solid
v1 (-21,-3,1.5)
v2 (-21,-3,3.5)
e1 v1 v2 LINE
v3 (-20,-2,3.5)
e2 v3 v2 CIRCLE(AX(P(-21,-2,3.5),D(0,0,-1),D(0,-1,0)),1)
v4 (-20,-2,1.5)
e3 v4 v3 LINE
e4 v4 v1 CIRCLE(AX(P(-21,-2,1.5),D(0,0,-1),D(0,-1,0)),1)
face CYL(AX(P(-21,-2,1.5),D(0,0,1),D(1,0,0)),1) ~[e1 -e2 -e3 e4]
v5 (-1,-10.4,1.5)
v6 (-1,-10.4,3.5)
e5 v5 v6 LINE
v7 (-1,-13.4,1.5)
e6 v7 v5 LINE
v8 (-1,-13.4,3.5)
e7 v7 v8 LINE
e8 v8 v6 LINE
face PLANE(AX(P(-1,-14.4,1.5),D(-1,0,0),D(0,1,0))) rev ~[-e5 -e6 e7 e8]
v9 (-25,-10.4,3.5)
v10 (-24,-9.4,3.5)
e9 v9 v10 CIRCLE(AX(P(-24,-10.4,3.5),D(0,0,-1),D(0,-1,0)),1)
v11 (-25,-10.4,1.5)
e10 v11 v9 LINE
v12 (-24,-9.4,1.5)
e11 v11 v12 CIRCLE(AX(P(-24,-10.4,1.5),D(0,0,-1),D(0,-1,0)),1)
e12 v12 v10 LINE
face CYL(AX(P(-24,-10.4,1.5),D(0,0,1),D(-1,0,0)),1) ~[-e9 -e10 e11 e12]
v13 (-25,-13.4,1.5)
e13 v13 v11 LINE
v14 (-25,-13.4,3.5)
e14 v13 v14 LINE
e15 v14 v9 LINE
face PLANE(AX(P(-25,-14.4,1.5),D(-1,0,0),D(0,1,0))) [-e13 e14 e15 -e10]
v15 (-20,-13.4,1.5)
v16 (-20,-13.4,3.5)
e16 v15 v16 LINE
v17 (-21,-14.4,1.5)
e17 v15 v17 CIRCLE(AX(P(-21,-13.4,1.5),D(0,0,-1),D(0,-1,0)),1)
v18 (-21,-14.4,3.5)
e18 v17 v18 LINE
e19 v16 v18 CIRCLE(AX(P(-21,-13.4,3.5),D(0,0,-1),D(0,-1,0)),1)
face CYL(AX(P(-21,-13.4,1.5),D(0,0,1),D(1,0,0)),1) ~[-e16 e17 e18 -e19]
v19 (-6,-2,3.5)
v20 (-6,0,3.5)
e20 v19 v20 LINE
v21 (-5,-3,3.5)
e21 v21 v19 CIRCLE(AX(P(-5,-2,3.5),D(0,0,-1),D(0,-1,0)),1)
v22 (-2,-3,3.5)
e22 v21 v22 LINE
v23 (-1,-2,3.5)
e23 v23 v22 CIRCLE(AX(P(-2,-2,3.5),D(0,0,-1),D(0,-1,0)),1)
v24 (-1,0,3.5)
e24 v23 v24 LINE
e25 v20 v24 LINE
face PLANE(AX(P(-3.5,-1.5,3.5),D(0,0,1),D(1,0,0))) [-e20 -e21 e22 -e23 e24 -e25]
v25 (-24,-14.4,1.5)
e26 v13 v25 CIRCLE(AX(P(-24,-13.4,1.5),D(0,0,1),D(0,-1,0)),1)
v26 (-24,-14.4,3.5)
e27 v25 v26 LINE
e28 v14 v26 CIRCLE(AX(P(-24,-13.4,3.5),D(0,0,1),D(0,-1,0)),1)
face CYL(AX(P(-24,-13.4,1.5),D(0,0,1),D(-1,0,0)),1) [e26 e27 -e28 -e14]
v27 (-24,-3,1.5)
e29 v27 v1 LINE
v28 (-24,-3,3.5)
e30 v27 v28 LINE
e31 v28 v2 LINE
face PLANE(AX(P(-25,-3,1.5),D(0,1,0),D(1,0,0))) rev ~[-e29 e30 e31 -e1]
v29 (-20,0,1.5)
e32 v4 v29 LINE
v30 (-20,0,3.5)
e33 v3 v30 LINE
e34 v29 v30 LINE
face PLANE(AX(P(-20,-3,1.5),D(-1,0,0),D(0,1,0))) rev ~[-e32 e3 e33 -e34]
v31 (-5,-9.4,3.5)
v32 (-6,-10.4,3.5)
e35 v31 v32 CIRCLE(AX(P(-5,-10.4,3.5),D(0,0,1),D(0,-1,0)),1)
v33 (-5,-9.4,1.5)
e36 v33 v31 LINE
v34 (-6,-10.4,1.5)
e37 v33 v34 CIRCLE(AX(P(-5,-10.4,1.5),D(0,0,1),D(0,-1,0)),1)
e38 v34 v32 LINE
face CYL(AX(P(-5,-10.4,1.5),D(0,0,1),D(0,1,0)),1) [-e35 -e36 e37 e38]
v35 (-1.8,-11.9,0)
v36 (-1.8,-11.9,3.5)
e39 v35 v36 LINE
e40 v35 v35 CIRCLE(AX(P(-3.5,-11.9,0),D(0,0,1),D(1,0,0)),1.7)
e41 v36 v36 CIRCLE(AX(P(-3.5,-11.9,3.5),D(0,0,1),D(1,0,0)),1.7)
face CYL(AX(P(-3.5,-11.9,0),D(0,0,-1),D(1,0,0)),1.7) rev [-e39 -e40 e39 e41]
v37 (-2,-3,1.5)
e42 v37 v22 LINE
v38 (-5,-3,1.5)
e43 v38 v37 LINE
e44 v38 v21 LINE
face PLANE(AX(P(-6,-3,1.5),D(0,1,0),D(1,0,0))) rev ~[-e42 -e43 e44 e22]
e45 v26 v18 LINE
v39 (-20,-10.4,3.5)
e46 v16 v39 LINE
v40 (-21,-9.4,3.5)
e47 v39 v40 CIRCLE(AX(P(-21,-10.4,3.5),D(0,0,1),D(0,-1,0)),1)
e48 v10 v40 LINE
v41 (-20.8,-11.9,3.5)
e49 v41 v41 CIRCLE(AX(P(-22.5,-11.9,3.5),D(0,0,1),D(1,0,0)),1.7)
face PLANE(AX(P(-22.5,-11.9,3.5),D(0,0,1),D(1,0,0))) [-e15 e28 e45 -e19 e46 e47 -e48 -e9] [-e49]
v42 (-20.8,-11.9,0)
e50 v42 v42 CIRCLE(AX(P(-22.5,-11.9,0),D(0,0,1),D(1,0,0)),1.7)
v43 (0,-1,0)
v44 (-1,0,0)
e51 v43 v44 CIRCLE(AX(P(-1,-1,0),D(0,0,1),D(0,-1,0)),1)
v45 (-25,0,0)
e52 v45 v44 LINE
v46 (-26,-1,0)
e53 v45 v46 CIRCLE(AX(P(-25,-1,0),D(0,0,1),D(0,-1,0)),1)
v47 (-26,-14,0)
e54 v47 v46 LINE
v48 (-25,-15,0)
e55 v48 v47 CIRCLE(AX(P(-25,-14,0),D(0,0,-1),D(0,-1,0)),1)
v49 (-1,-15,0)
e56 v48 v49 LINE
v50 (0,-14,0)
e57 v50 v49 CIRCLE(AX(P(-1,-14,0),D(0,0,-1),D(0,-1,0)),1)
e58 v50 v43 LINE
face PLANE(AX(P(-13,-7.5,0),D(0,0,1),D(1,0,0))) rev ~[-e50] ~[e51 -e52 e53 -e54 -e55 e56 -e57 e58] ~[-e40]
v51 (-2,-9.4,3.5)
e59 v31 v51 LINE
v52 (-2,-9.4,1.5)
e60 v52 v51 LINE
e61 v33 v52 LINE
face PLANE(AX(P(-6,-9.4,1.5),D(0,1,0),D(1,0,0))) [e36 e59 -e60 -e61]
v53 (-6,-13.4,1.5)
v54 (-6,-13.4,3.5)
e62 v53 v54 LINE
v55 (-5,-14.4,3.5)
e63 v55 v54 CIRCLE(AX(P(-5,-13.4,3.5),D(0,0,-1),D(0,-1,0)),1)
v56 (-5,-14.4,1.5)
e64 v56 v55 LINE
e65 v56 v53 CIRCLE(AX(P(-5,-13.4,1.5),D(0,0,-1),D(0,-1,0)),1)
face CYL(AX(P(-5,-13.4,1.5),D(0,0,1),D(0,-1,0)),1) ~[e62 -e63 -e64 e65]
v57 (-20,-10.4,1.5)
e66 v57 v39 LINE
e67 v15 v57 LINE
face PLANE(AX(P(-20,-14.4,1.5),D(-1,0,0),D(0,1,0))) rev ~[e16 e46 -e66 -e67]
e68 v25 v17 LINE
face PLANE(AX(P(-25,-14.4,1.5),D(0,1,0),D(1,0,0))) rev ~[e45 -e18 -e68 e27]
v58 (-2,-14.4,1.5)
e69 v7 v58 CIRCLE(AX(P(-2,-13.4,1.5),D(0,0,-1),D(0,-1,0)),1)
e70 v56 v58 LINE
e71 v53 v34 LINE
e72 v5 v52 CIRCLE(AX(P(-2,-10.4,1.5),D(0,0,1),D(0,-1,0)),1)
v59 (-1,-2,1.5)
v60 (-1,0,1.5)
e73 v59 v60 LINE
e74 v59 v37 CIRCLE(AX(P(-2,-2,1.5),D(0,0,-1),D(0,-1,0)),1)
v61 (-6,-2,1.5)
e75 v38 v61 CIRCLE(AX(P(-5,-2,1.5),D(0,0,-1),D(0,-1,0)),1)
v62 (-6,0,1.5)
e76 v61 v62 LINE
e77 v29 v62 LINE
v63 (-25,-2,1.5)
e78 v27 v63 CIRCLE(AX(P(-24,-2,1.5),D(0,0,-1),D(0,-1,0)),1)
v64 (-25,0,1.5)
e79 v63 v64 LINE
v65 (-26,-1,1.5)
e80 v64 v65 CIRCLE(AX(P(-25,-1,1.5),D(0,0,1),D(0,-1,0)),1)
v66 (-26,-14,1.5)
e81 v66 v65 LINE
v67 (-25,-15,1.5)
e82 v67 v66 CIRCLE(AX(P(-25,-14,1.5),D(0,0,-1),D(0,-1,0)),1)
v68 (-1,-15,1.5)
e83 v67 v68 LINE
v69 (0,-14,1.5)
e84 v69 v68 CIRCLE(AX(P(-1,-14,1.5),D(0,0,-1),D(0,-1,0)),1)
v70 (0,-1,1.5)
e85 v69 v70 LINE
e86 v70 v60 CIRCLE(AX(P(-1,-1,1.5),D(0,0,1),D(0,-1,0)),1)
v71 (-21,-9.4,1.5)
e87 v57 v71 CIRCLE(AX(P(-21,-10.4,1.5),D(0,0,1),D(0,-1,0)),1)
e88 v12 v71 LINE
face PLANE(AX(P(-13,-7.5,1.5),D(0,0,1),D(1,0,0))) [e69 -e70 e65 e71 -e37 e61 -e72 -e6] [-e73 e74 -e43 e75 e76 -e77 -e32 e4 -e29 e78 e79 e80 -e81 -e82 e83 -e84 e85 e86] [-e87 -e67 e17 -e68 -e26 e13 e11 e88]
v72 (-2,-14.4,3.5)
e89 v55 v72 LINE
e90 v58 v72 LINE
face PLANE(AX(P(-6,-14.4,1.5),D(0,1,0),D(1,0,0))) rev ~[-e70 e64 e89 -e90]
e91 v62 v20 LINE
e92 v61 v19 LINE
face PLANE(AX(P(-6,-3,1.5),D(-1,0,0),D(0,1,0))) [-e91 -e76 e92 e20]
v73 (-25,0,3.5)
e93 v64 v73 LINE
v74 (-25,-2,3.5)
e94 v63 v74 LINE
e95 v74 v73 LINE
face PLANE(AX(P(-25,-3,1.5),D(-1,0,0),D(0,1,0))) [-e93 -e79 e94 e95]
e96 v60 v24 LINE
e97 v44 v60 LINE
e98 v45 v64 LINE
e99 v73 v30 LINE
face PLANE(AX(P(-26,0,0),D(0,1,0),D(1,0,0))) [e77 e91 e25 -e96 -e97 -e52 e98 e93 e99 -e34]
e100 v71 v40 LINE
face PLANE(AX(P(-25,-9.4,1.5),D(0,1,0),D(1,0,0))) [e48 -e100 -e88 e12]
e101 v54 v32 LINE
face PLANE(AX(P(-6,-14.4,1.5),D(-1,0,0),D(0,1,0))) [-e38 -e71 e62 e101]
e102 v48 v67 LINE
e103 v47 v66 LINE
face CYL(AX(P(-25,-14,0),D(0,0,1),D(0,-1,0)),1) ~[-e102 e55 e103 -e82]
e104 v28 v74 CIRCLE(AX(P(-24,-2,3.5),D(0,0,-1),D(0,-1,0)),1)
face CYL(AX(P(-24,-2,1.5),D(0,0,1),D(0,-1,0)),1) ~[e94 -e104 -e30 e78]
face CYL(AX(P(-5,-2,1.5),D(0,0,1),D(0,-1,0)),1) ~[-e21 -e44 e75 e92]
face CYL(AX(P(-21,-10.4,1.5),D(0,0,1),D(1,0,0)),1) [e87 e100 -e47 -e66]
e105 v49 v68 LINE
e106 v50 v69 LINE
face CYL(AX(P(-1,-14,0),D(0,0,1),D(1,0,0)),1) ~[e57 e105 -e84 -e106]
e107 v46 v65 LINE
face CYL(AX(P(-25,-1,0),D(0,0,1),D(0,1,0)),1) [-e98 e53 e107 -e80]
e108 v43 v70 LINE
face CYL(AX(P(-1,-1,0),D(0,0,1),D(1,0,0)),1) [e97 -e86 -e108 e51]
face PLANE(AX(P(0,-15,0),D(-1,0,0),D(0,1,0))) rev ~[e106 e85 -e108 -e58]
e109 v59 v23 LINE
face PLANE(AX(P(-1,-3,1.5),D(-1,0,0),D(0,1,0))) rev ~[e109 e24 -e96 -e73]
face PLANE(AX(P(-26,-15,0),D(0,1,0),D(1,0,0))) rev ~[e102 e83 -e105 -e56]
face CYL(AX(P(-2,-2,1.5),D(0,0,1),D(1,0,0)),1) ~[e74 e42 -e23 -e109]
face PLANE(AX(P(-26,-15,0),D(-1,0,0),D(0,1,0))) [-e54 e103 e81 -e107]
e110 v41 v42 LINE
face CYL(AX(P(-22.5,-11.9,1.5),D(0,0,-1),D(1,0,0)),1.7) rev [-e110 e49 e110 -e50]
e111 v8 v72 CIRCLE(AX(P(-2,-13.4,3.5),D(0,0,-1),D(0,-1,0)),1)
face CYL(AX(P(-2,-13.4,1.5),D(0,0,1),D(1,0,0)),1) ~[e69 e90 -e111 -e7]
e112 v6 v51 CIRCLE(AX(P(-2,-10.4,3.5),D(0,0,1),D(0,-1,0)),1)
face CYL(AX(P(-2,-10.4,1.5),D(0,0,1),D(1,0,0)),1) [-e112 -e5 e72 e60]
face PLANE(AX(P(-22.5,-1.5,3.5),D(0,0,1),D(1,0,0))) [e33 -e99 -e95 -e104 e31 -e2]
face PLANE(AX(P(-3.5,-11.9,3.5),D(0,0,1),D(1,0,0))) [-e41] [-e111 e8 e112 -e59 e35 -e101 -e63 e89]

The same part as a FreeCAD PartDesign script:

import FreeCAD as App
import Part
import Sketcher

V = App.Vector
Q = App.Units.Quantity


def edges_at(feature, points):
    """Names of the edges that pass closest to the given points."""
    edges = feature.Shape.Edges
    near = lambda p: min(range(len(edges)), key=lambda i: edges[i].distToShape(Part.Vertex(*p))[0])
    return sorted({f"Edge{near(p) + 1}" for p in points})

doc = App.newDocument("Part")
body = doc.addObject("PartDesign::Body", "Body")

sketch1 = doc.addObject("Sketcher::SketchObject", "Sketch")
body.addObject(sketch1)
sketch1.AttachmentSupport = (doc.XY_Plane, [""])
sketch1.MapMode = "FlatFace"
sketch1.addGeometry(Part.LineSegment(V(-26, 0, 0), V(-26, -15, 0)), False)
sketch1.addGeometry(Part.LineSegment(V(-26, -15, 0), V(0, -15, 0)), False)
sketch1.addGeometry(Part.LineSegment(V(0, -15, 0), V(0, 0, 0)), False)
sketch1.addGeometry(Part.LineSegment(V(0, 0, 0), V(-26, 0, 0)), False)
sketch1.addGeometry(Part.Circle(V(-22.5, -11.9, 0), V(0, 0, 1), 1.7), False)
sketch1.addGeometry(Part.Circle(V(-3.5, -11.9, 0), V(0, 0, 1), 1.7), False)
sketch1.addConstraint(Sketcher.Constraint("Coincident", 0, 2, 1, 1))
sketch1.addConstraint(Sketcher.Constraint("Coincident", 1, 2, 2, 1))
sketch1.addConstraint(Sketcher.Constraint("Coincident", 2, 2, 3, 1))
sketch1.addConstraint(Sketcher.Constraint("Coincident", 3, 2, 0, 1))
sketch1.addConstraint(Sketcher.Constraint("Vertical", 0))
sketch1.addConstraint(Sketcher.Constraint("Horizontal", 1))
sketch1.addConstraint(Sketcher.Constraint("Vertical", 2))
sketch1.addConstraint(Sketcher.Constraint("Horizontal", 3))
sketch1.addConstraint(Sketcher.Constraint("Coincident", 2, 2, -1, 1))
sketch1.addConstraint(Sketcher.Constraint("Equal", 4, 5))
sketch1.addConstraint(Sketcher.Constraint("Horizontal", 4, 3, 5, 3))
sketch1.addConstraint(Sketcher.Constraint("Diameter", 4, Q("3.4 mm")))
sketch1.addConstraint(Sketcher.Constraint("DistanceX", 1, 1, 1, 2, Q("26 mm")))
sketch1.addConstraint(Sketcher.Constraint("DistanceY", 0, 2, 0, 1, Q("15 mm")))
sketch1.addConstraint(Sketcher.Constraint("DistanceX", 4, 3, 5, 3, Q("19 mm")))
sketch1.addConstraint(Sketcher.Constraint("DistanceX", 4, 3, -1, 1, Q("22.5 mm")))
sketch1.addConstraint(Sketcher.Constraint("DistanceY", 4, 3, -1, 1, Q("11.9 mm")))
pad1 = doc.addObject("PartDesign::Pad", "Pad")
body.addObject(pad1)
pad1.Profile = sketch1
pad1.Length = 1.5

sketch2 = doc.addObject("Sketcher::SketchObject", "Sketch001")
body.addObject(sketch2)
sketch2.AttachmentSupport = (doc.XY_Plane, [""])
sketch2.MapMode = "FlatFace"
sketch2.AttachmentOffset = App.Placement(V(0, 0, 1.5), App.Rotation())
sketch2.addGeometry(Part.LineSegment(V(-25, -9.4, 0), V(-25, -14.4, 0)), False)
sketch2.addGeometry(Part.LineSegment(V(-25, -14.4, 0), V(-20, -14.4, 0)), False)
sketch2.addGeometry(Part.LineSegment(V(-20, -14.4, 0), V(-20, -9.4, 0)), False)
sketch2.addGeometry(Part.LineSegment(V(-20, -9.4, 0), V(-25, -9.4, 0)), False)
sketch2.addGeometry(Part.Circle(V(-22.5, -11.9, 0), V(0, 0, 1), 1.7), False)
sketch2.addGeometry(Part.LineSegment(V(-6, -9.4, 0), V(-6, -14.4, 0)), False)
sketch2.addGeometry(Part.LineSegment(V(-6, -14.4, 0), V(-1, -14.4, 0)), False)
sketch2.addGeometry(Part.LineSegment(V(-1, -14.4, 0), V(-1, -9.4, 0)), False)
sketch2.addGeometry(Part.LineSegment(V(-1, -9.4, 0), V(-6, -9.4, 0)), False)
sketch2.addGeometry(Part.Circle(V(-3.5, -11.9, 0), V(0, 0, 1), 1.7), False)
sketch2.addGeometry(Part.LineSegment(V(-25, 0, 0), V(-25, -3, 0)), False)
sketch2.addGeometry(Part.LineSegment(V(-25, -3, 0), V(-20, -3, 0)), False)
sketch2.addGeometry(Part.LineSegment(V(-20, -3, 0), V(-20, 0, 0)), False)
sketch2.addGeometry(Part.LineSegment(V(-20, 0, 0), V(-25, 0, 0)), False)
sketch2.addGeometry(Part.LineSegment(V(-6, 0, 0), V(-6, -3, 0)), False)
sketch2.addGeometry(Part.LineSegment(V(-6, -3, 0), V(-1, -3, 0)), False)
sketch2.addGeometry(Part.LineSegment(V(-1, -3, 0), V(-1, 0, 0)), False)
sketch2.addGeometry(Part.LineSegment(V(-1, 0, 0), V(-6, 0, 0)), False)
sketch2.addConstraint(Sketcher.Constraint("Coincident", 0, 2, 1, 1))
sketch2.addConstraint(Sketcher.Constraint("Coincident", 1, 2, 2, 1))
sketch2.addConstraint(Sketcher.Constraint("Coincident", 2, 2, 3, 1))
sketch2.addConstraint(Sketcher.Constraint("Coincident", 3, 2, 0, 1))
sketch2.addConstraint(Sketcher.Constraint("Coincident", 5, 2, 6, 1))
sketch2.addConstraint(Sketcher.Constraint("Coincident", 6, 2, 7, 1))
sketch2.addConstraint(Sketcher.Constraint("Coincident", 7, 2, 8, 1))
sketch2.addConstraint(Sketcher.Constraint("Coincident", 8, 2, 5, 1))
sketch2.addConstraint(Sketcher.Constraint("Coincident", 10, 2, 11, 1))
sketch2.addConstraint(Sketcher.Constraint("Coincident", 11, 2, 12, 1))
sketch2.addConstraint(Sketcher.Constraint("Coincident", 12, 2, 13, 1))
sketch2.addConstraint(Sketcher.Constraint("Coincident", 13, 2, 10, 1))
sketch2.addConstraint(Sketcher.Constraint("Coincident", 14, 2, 15, 1))
sketch2.addConstraint(Sketcher.Constraint("Coincident", 15, 2, 16, 1))
sketch2.addConstraint(Sketcher.Constraint("Coincident", 16, 2, 17, 1))
sketch2.addConstraint(Sketcher.Constraint("Coincident", 17, 2, 14, 1))
sketch2.addConstraint(Sketcher.Constraint("Vertical", 0))
sketch2.addConstraint(Sketcher.Constraint("Horizontal", 1))
sketch2.addConstraint(Sketcher.Constraint("Vertical", 2))
sketch2.addConstraint(Sketcher.Constraint("Horizontal", 3))
sketch2.addConstraint(Sketcher.Constraint("Vertical", 5))
sketch2.addConstraint(Sketcher.Constraint("Horizontal", 6))
sketch2.addConstraint(Sketcher.Constraint("Vertical", 7))
sketch2.addConstraint(Sketcher.Constraint("Horizontal", 8))
sketch2.addConstraint(Sketcher.Constraint("Vertical", 10))
sketch2.addConstraint(Sketcher.Constraint("Horizontal", 11))
sketch2.addConstraint(Sketcher.Constraint("Vertical", 12))
sketch2.addConstraint(Sketcher.Constraint("Horizontal", 13))
sketch2.addConstraint(Sketcher.Constraint("Vertical", 14))
sketch2.addConstraint(Sketcher.Constraint("Horizontal", 15))
sketch2.addConstraint(Sketcher.Constraint("Vertical", 16))
sketch2.addConstraint(Sketcher.Constraint("Horizontal", 17))
sketch2.addConstraint(Sketcher.Constraint("Equal", 4, 9))
sketch2.addConstraint(Sketcher.Constraint("PointOnObject", 12, 2, -1))
sketch2.addConstraint(Sketcher.Constraint("PointOnObject", 16, 2, -1))
sketch2.addConstraint(Sketcher.Constraint("Horizontal", 4, 3, 9, 3))
sketch2.addConstraint(Sketcher.Constraint("Horizontal", 1, 2, 5, 2))
sketch2.addConstraint(Sketcher.Constraint("Horizontal", 3, 2, 7, 2))
sketch2.addConstraint(Sketcher.Constraint("Horizontal", 11, 2, 14, 2))
sketch2.addConstraint(Sketcher.Constraint("Vertical", 3, 2, 10, 2))
sketch2.addConstraint(Sketcher.Constraint("Vertical", 2, 2, 11, 2))
sketch2.addConstraint(Sketcher.Constraint("Vertical", 8, 2, 14, 2))
sketch2.addConstraint(Sketcher.Constraint("Vertical", 7, 2, 15, 2))
sketch2.addConstraint(Sketcher.Constraint("Equal", 3, 6))
sketch2.addConstraint(Sketcher.Constraint("Equal", 17, 0))
sketch2.addConstraint(Sketcher.Constraint("Diameter", 4, Q("3.4 mm")))
sketch2.addConstraint(Sketcher.Constraint("DistanceX", 1, 1, 1, 2, Q("5 mm")))
sketch2.addConstraint(Sketcher.Constraint("DistanceY", 10, 2, 10, 1, Q("3 mm")))
sketch2.addConstraint(Sketcher.Constraint("DistanceX", 0, 2, -1, 1, Q("25 mm")))
sketch2.addConstraint(Sketcher.Constraint("DistanceX", 5, 2, -1, 1, Q("6 mm")))
sketch2.addConstraint(Sketcher.Constraint("DistanceX", 4, 3, 9, 3, Q("19 mm")))
sketch2.addConstraint(Sketcher.Constraint("DistanceX", 4, 3, -1, 1, Q("22.5 mm")))
sketch2.addConstraint(Sketcher.Constraint("DistanceY", 4, 3, -1, 1, Q("11.9 mm")))
sketch2.addConstraint(Sketcher.Constraint("DistanceY", 0, 2, -1, 1, Q("14.4 mm")))
pad2 = doc.addObject("PartDesign::Pad", "Pad001")
body.addObject(pad2)
pad2.Profile = sketch2
pad2.Length = 2
doc.recompute()

fillet = doc.addObject("PartDesign::Fillet", "Fillet")
body.addObject(fillet)
fillet.Base = (pad2, edges_at(pad2, [
    (-26, 0, 0.75),
    (-26, -15, 0.75),
    (0, -15, 0.75),
    (0, 0, 0.75),
    (-1, -3, 2.5),
    (-6, -3, 2.5),
    (-20, -3, 2.5),
    (-25, -3, 2.5),
    (-25, -14.4, 2.5),
    (-25, -9.4, 2.5),
    (-20, -9.4, 2.5),
    (-20, -14.4, 2.5),
    (-6, -14.4, 2.5),
    (-1, -14.4, 2.5),
    (-1, -9.4, 2.5),
    (-6, -9.4, 2.5),
]))
fillet.Radius = 1

doc.recompute()
